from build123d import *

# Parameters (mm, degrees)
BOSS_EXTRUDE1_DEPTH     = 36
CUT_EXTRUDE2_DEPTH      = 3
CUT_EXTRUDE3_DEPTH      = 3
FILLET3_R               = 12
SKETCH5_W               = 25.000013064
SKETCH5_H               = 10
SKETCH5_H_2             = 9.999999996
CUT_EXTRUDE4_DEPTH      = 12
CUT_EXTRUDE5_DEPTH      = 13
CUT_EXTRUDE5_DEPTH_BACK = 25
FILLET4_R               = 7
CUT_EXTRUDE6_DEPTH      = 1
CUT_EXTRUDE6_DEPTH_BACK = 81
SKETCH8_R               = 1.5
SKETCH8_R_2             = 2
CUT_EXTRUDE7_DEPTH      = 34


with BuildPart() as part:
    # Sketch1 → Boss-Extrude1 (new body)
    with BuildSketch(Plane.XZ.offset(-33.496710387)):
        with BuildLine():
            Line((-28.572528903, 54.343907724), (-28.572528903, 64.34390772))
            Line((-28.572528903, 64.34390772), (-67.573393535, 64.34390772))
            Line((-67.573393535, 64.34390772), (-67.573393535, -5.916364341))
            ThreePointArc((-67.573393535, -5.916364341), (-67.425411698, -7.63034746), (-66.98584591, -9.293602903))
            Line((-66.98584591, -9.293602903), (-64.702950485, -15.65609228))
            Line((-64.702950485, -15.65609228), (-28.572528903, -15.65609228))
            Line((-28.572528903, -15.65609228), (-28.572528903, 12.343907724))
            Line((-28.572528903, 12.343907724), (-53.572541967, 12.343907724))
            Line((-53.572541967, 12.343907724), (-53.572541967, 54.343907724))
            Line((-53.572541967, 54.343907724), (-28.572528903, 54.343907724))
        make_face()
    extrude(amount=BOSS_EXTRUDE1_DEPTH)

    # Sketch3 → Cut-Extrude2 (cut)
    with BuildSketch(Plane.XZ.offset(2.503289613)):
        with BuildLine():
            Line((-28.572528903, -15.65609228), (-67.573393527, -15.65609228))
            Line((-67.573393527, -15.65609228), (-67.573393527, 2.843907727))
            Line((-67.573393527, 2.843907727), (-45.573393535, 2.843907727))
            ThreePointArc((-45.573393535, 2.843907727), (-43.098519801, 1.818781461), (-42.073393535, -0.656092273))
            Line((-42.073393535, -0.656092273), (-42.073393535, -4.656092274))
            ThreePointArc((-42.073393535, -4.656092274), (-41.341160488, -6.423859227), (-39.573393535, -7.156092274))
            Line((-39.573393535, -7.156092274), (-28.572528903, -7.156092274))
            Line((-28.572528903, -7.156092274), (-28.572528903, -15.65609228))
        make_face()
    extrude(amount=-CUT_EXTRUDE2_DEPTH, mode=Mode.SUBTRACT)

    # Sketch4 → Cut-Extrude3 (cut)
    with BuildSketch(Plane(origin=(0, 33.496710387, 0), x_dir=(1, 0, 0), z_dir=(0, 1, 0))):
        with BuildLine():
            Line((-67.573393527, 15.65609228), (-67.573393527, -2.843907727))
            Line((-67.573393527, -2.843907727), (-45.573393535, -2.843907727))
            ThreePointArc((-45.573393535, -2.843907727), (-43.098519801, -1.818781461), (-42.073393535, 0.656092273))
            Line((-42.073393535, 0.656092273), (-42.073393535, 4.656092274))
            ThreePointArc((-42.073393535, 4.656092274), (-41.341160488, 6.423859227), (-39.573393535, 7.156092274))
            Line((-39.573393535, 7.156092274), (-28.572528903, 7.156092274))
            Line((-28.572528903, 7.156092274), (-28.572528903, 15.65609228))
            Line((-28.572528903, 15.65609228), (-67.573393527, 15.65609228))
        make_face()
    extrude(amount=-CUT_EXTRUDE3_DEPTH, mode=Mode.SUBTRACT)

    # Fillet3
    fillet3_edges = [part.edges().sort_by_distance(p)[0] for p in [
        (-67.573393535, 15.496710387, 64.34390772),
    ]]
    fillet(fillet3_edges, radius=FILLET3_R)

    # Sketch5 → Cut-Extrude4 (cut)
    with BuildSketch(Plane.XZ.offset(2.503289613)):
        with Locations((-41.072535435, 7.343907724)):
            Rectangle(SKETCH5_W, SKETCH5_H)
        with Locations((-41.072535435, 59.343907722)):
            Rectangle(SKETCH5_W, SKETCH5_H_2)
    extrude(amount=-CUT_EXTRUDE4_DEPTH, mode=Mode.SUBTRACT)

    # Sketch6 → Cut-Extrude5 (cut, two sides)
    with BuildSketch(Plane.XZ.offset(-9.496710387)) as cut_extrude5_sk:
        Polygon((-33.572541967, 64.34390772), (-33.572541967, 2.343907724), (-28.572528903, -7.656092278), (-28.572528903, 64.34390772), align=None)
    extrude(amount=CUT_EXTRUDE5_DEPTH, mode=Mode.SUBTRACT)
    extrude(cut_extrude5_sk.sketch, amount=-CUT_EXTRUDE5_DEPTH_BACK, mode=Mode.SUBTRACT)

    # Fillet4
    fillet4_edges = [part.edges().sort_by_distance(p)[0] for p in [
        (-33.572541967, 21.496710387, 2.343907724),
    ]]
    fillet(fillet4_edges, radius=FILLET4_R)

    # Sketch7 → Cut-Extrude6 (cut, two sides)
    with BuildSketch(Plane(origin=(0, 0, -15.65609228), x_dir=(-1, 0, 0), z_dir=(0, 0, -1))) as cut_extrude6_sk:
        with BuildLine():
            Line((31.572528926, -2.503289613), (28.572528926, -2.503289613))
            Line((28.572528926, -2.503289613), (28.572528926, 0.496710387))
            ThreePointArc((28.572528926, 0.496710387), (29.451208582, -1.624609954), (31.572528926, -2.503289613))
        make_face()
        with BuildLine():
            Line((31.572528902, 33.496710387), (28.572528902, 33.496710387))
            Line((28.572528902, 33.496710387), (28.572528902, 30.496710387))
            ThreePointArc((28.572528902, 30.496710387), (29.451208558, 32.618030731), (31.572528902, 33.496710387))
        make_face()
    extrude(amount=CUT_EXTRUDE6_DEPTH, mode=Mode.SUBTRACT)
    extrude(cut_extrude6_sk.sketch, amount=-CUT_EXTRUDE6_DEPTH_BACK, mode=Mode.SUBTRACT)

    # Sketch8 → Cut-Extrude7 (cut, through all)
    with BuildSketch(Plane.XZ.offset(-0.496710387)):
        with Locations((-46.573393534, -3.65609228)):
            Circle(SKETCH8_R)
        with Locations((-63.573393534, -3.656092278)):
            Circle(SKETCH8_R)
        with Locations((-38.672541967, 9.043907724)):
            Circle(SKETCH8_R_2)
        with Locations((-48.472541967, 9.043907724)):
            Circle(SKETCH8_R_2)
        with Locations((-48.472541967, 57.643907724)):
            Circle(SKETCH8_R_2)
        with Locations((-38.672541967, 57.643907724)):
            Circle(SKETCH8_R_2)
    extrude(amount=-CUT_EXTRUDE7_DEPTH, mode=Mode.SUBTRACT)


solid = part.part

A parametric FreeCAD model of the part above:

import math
import FreeCAD as App
import Part
import Sketcher

V = App.Vector


def edges_at(feature, points):
    """Names of the edges that pass closest to the given points."""
    edges = feature.Shape.Edges
    near = lambda p: min(range(len(edges)), key=lambda i: edges[i].distToShape(Part.Vertex(*p))[0])
    return sorted({f"Edge{near(p) + 1}" for p in points})

doc = App.newDocument("Part")
body = doc.addObject("PartDesign::Body", "Body")

# Sketch on XZ plane
sketch1 = body.newObject("Sketcher::SketchObject", "Sketch")
sketch1.AttachmentSupport = (doc.getObject("XZ_Plane"), [""])
sketch1.MapMode = "FlatFace"
sketch1.AttachmentOffset = App.Placement(V(0, 0, -33.49671), App.Rotation())
sketch1.addGeometry([
    Part.LineSegment(V(-28.572529, 54.343908, 0), V(-28.572529, 64.343908, 0)),  # 0
    Part.LineSegment(V(-28.572529, 64.343908, 0), V(-67.573394, 64.343908, 0)),  # 1
    Part.LineSegment(V(-67.573394, 64.343908, 0), V(-67.573394, -5.916364, 0)),  # 2
    Part.ArcOfCircle(Part.Circle(V(-57.573394, -5.916364, 0), V(0, 0, 1), 10), math.radians(180), math.radians(199.73826)),  # 3
    Part.LineSegment(V(-66.985846, -9.293603, 0), V(-64.70295, -15.656092, 0)),  # 4
    Part.LineSegment(V(-64.70295, -15.656092, 0), V(-28.572529, -15.656092, 0)),  # 5
    Part.LineSegment(V(-28.572529, -15.656092, 0), V(-28.572529, 12.343908, 0)),  # 6
    Part.LineSegment(V(-28.572529, 12.343908, 0), V(-53.572542, 12.343908, 0)),  # 7
    Part.LineSegment(V(-53.572542, 12.343908, 0), V(-53.572542, 54.343908, 0)),  # 8
    Part.LineSegment(V(-53.572542, 54.343908, 0), V(-28.572529, 54.343908, 0)),  # 9
], False)
sketch1.addConstraint([
    Sketcher.Constraint("Coincident", 0, 2, 1, 1),
    Sketcher.Constraint("Coincident", 1, 2, 2, 1),
    Sketcher.Constraint("Tangent", 2, 2, 3, 1),
    Sketcher.Constraint("Tangent", 3, 2, 4, 1),
    Sketcher.Constraint("Coincident", 4, 2, 5, 1),
    Sketcher.Constraint("Coincident", 5, 2, 6, 1),
    Sketcher.Constraint("Coincident", 6, 2, 7, 1),
    Sketcher.Constraint("Coincident", 7, 2, 8, 1),
    Sketcher.Constraint("Coincident", 8, 2, 9, 1),
    Sketcher.Constraint("Coincident", 9, 2, 0, 1),
    Sketcher.Constraint("Vertical", 0),
    Sketcher.Constraint("Horizontal", 1),
    Sketcher.Constraint("Vertical", 2),
    Sketcher.Constraint("Horizontal", 5),
    Sketcher.Constraint("Vertical", 6),
    Sketcher.Constraint("Horizontal", 7),
    Sketcher.Constraint("Vertical", 8),
    Sketcher.Constraint("Horizontal", 9),
    Sketcher.Constraint("Vertical", 0, 2, 5, 2),
    Sketcher.Constraint("Radius", 3, 10.0),
    Sketcher.Constraint("DistanceY", 0, 1, 0, 2, 10.0),
    Sketcher.Constraint("DistanceY", 6, 1, 6, 2, 28.0),
    Sketcher.Constraint("DistanceY", 8, 1, 8, 2, 42.0),
    Sketcher.Constraint("DistanceX", 5, 1, 5, 2, 36.130422),
    Sketcher.Constraint("Distance", 4, 6.759651),
    Sketcher.Constraint("DistanceX", 1, 2, 1, 1, 39.000865),
    Sketcher.Constraint("DistanceX", 7, 2, 7, 1, 25.000013),
    Sketcher.Constraint("DistanceX", 0, 2, -1, 1, 28.572529),
    Sketcher.Constraint("DistanceY", 3, 3, -1, 1, 5.916364),
])
pad1 = body.newObject("PartDesign::Pad", "Pad")
pad1.Profile = sketch1
pad1.Length = 36

# Sketch on XZ plane
sketch2 = body.newObject("Sketcher::SketchObject", "Sketch001")
sketch2.AttachmentSupport = (doc.getObject("XZ_Plane"), [""])
sketch2.MapMode = "FlatFace"
sketch2.AttachmentOffset = App.Placement(V(0, 0, 2.50329), App.Rotation())
sketch2.addGeometry([
    Part.LineSegment(V(-67.573394, -15.656092, 0), V(-28.572529, -15.656092, 0)),  # 0
    Part.LineSegment(V(-28.572529, -15.656092, 0), V(-28.572529, -7.156092, 0)),  # 1
    Part.LineSegment(V(-28.572529, -7.156092, 0), V(-39.573394, -7.156092, 0)),  # 2
    Part.ArcOfCircle(Part.Circle(V(-39.573394, -4.656092, 0), V(0, 0, 1), 2.5), math.radians(180), math.radians(270)),  # 3
    Part.LineSegment(V(-42.073394, -4.656092, 0), V(-42.073394, -0.656092, 0)),  # 4
    Part.ArcOfCircle(Part.Circle(V(-45.573394, -0.656092, 0), V(0, 0, 1), 3.5), math.radians(0), math.radians(90)),  # 5
    Part.LineSegment(V(-45.573394, 2.843908, 0), V(-67.573394, 2.843908, 0)),  # 6
    Part.LineSegment(V(-67.573394, 2.843908, 0), V(-67.573394, -15.656092, 0)),  # 7
], False)
sketch2.addConstraint([
    Sketcher.Constraint("Coincident", 0, 2, 1, 1),
    Sketcher.Constraint("Coincident", 1, 2, 2, 1),
    Sketcher.Constraint("Tangent", 2, 2, 3, 2),
    Sketcher.Constraint("Tangent", 3, 1, 4, 1),
    Sketcher.Constraint("Tangent", 4, 2, 5, 1),
    Sketcher.Constraint("Tangent", 5, 2, 6, 1),
    Sketcher.Constraint("Coincident", 6, 2, 7, 1),
    Sketcher.Constraint("Coincident", 7, 2, 0, 1),
    Sketcher.Constraint("Horizontal", 0),
    Sketcher.Constraint("Vertical", 1),
    Sketcher.Constraint("Horizontal", 2),
    Sketcher.Constraint("Vertical", 4),
    Sketcher.Constraint("Horizontal", 6),
    Sketcher.Constraint("Vertical", 7),
    Sketcher.Constraint("Radius", 3, 2.5),
    Sketcher.Constraint("Radius", 5, 3.5),
    Sketcher.Constraint("DistanceX", 6, 2, 6, 1, 22.0),
    Sketcher.Constraint("DistanceY", 4, 1, 4, 2, 4.0),
    Sketcher.Constraint("DistanceY", 1, 1, 1, 2, 8.5),
    Sketcher.Constraint("DistanceX", 0, 1, 0, 2, 39.000865),
    Sketcher.Constraint("DistanceX", 0, 2, -1, 1, 28.572529),
    Sketcher.Constraint("DistanceY", 3, 3, -1, 1, 4.656092),
])
pocket1 = body.newObject("PartDesign::Pocket", "Pocket")
pocket1.Profile = sketch2
pocket1.Length = 3

# Sketch on XZ plane
sketch3 = body.newObject("Sketcher::SketchObject", "Sketch002")
sketch3.AttachmentSupport = (doc.getObject("XZ_Plane"), [""])
sketch3.MapMode = "FlatFace"
sketch3.AttachmentOffset = App.Placement(V(0, 0, -33.49671), App.Rotation())
sketch3.addGeometry([
    Part.LineSegment(V(-67.573394, -15.656092, 0), V(-67.573394, 2.843908, 0)),  # 0
    Part.LineSegment(V(-67.573394, 2.843908, 0), V(-45.573394, 2.843908, 0)),  # 1
    Part.ArcOfCircle(Part.Circle(V(-45.573394, -0.656092, 0), V(0, 0, 1), 3.5), math.radians(0), math.radians(90)),  # 2
    Part.LineSegment(V(-42.073394, -0.656092, 0), V(-42.073394, -4.656092, 0)),  # 3
    Part.ArcOfCircle(Part.Circle(V(-39.573394, -4.656092, 0), V(0, 0, 1), 2.5), math.radians(180), math.radians(270)),  # 4
    Part.LineSegment(V(-39.573394, -7.156092, 0), V(-28.572529, -7.156092, 0)),  # 5
    Part.LineSegment(V(-28.572529, -7.156092, 0), V(-28.572529, -15.656092, 0)),  # 6
    Part.LineSegment(V(-28.572529, -15.656092, 0), V(-67.573394, -15.656092, 0)),  # 7
], False)
sketch3.addConstraint([
    Sketcher.Constraint("Coincident", 0, 2, 1, 1),
    Sketcher.Constraint("Tangent", 1, 2, 2, 2),
    Sketcher.Constraint("Tangent", 2, 1, 3, 1),
    Sketcher.Constraint("Tangent", 3, 2, 4, 1),
    Sketcher.Constraint("Tangent", 4, 2, 5, 1),
    Sketcher.Constraint("Coincident", 5, 2, 6, 1),
    Sketcher.Constraint("Coincident", 6, 2, 7, 1),
    Sketcher.Constraint("Coincident", 7, 2, 0, 1),
    Sketcher.Constraint("Vertical", 0),
    Sketcher.Constraint("Horizontal", 1),
    Sketcher.Constraint("Vertical", 3),
    Sketcher.Constraint("Horizontal", 5),
    Sketcher.Constraint("Vertical", 6),
    Sketcher.Constraint("Horizontal", 7),
    Sketcher.Constraint("Radius", 2, 3.5),
    Sketcher.Constraint("Radius", 4, 2.5),
    Sketcher.Constraint("DistanceX", 1, 1, 1, 2, 22.0),
    Sketcher.Constraint("DistanceY", 3, 2, 3, 1, 4.0),
    Sketcher.Constraint("DistanceY", 0, 1, 0, 2, 18.5),
    Sketcher.Constraint("DistanceX", 5, 1, 5, 2, 11.000865),
    Sketcher.Constraint("DistanceX", 5, 2, -1, 1, 28.572529),
    Sketcher.Constraint("DistanceY", 2, 3, -1, 1, 0.656092),
])
pocket2 = body.newObject("PartDesign::Pocket", "Pocket001")
pocket2.Profile = sketch3
pocket2.Length = 3
pocket2.Reversed = True
doc.recompute()

fillet = body.newObject("PartDesign::Fillet", "Fillet")
fillet.Base = (pocket2, edges_at(pocket2, [(-67.573, 15.497, 64.344)]))
fillet.Radius = 12

# Sketch on XZ plane
sketch4 = body.newObject("Sketcher::SketchObject", "Sketch003")
sketch4.AttachmentSupport = (doc.getObject("XZ_Plane"), [""])
sketch4.MapMode = "FlatFace"
sketch4.AttachmentOffset = App.Placement(V(0, 0, 2.50329), App.Rotation())
sketch4.addGeometry([
    Part.LineSegment(V(-53.572542, 12.343908, 0), V(-53.572542, 2.343908, 0)),  # 0
    Part.LineSegment(V(-53.572542, 2.343908, 0), V(-28.572529, 2.343908, 0)),  # 1
    Part.LineSegment(V(-28.572529, 2.343908, 0), V(-28.572529, 12.343908, 0)),  # 2
    Part.LineSegment(V(-28.572529, 12.343908, 0), V(-53.572542, 12.343908, 0)),  # 3
    Part.LineSegment(V(-53.572542, 64.343908, 0), V(-53.572542, 54.343908, 0)),  # 4
    Part.LineSegment(V(-53.572542, 54.343908, 0), V(-28.572529, 54.343908, 0)),  # 5
    Part.LineSegment(V(-28.572529, 54.343908, 0), V(-28.572529, 64.343908, 0)),  # 6
    Part.LineSegment(V(-28.572529, 64.343908, 0), V(-53.572542, 64.343908, 0)),  # 7
], False)
sketch4.addConstraint([
    Sketcher.Constraint("Coincident", 0, 2, 1, 1),
    Sketcher.Constraint("Coincident", 1, 2, 2, 1),
    Sketcher.Constraint("Coincident", 2, 2, 3, 1),
    Sketcher.Constraint("Coincident", 3, 2, 0, 1),
    Sketcher.Constraint("Coincident", 4, 2, 5, 1),
    Sketcher.Constraint("Coincident", 5, 2, 6, 1),
    Sketcher.Constraint("Coincident", 6, 2, 7, 1),
    Sketcher.Constraint("Coincident", 7, 2, 4, 1),
    Sketcher.Constraint("Vertical", 0),
    Sketcher.Constraint("Horizontal", 1),
    Sketcher.Constraint("Vertical", 2),
    Sketcher.Constraint("Horizontal", 3),
    Sketcher.Constraint("Vertical", 4),
    Sketcher.Constraint("Horizontal", 5),
    Sketcher.Constraint("Vertical", 6),
    Sketcher.Constraint("Horizontal", 7),
    Sketcher.Constraint("Vertical", 3, 2, 4, 2),
    Sketcher.Constraint("Vertical", 2, 2, 5, 2),
    Sketcher.Constraint("Equal", 2, 4),
    Sketcher.Constraint("DistanceY", 0, 2, 0, 1, 10.0),
    Sketcher.Constraint("DistanceY", 3, 2, 4, 2, 42.0),
    Sketcher.Constraint("DistanceX", 1, 1, 1, 2, 25.000013),
    Sketcher.Constraint("DistanceX", 0, 2, -1, 1, 53.572542),
    Sketcher.Constraint("DistanceY", -1, 1, 0, 2, 2.343908),
])
pocket3 = body.newObject("PartDesign::Pocket", "Pocket002")
pocket3.Profile = sketch4
pocket3.Length = 12

# Sketch on XZ plane
sketch5 = body.newObject("Sketcher::SketchObject", "Sketch004")
sketch5.AttachmentSupport = (doc.getObject("XZ_Plane"), [""])
sketch5.MapMode = "FlatFace"
sketch5.AttachmentOffset = App.Placement(V(0, 0, -9.49671), App.Rotation())
sketch5.addGeometry([
    Part.LineSegment(V(-33.572542, 64.343908, 0), V(-33.572542, 2.343908, 0)),
    Part.LineSegment(V(-33.572542, 2.343908, 0), V(-28.572529, -7.656092, 0)),
    Part.LineSegment(V(-28.572529, -7.656092, 0), V(-28.572529, 64.343908, 0)),
    Part.LineSegment(V(-28.572529, 64.343908, 0), V(-33.572542, 64.343908, 0)),
], False)
sketch5.addConstraint([
    Sketcher.Constraint("Coincident", 0, 2, 1, 1),
    Sketcher.Constraint("Coincident", 1, 2, 2, 1),
    Sketcher.Constraint("Coincident", 2, 2, 3, 1),
    Sketcher.Constraint("Coincident", 3, 2, 0, 1),
    Sketcher.Constraint("Vertical", 0),
    Sketcher.Constraint("Vertical", 2),
    Sketcher.Constraint("Horizontal", 3),
    Sketcher.Constraint("DistanceY", 0, 2, 0, 1, 62.0),
    Sketcher.Constraint("DistanceY", 2, 1, 2, 2, 72.0),
    Sketcher.Constraint("DistanceX", 3, 2, 3, 1, 5.000013),
    Sketcher.Constraint("DistanceX", 0, 2, -1, 1, 33.572542),
    Sketcher.Constraint("DistanceY", -1, 1, 0, 2, 2.343908),
])
pocket4 = body.newObject("PartDesign::Pocket", "Pocket003")
pocket4.Profile = sketch5
pocket4.Type = "ThroughAll"
pocket4.Midplane = True
doc.recompute()

fillet2 = body.newObject("PartDesign::Fillet", "Fillet001")
fillet2.Base = (pocket4, edges_at(pocket4, [(-33.573, 21.497, 2.344)]))
fillet2.Radius = 7

# Sketch on XY plane
sketch6 = body.newObject("Sketcher::SketchObject", "Sketch005")
sketch6.AttachmentSupport = (doc.getObject("XY_Plane"), [""])
sketch6.MapMode = "FlatFace"
sketch6.AttachmentOffset = App.Placement(V(0, 0, -15.656092), App.Rotation())
sketch6.addGeometry([
    Part.LineSegment(V(-28.572529, -2.50329, 0), V(-31.572529, -2.50329, 0)),  # 0
    Part.ArcOfCircle(Part.Circle(V(-31.572529, 0.49671, 0), V(0, 0, 1), 3), math.radians(-90), math.radians(0)),  # 1
    Part.LineSegment(V(-28.572529, 0.49671, 0), V(-28.572529, -2.50329, 0)),  # 2
    Part.LineSegment(V(-31.572529, 33.49671, 0), V(-28.572529, 33.49671, 0)),  # 3
    Part.LineSegment(V(-28.572529, 33.49671, 0), V(-28.572529, 30.49671, 0)),  # 4
    Part.ArcOfCircle(Part.Circle(V(-31.572529, 30.49671, 0), V(0, 0, 1), 3), math.radians(0), math.radians(90)),  # 5
], False)
sketch6.addConstraint([
    Sketcher.Constraint("Tangent", 0, 2, 1, 1),
    Sketcher.Constraint("Tangent", 1, 2, 2, 1),
    Sketcher.Constraint("Coincident", 2, 2, 0, 1),
    Sketcher.Constraint("Coincident", 3, 2, 4, 1),
    Sketcher.Constraint("Tangent", 4, 2, 5, 1),
    Sketcher.Constraint("Tangent", 5, 2, 3, 1),
    Sketcher.Constraint("Horizontal", 0),
    Sketcher.Constraint("Vertical", 2),
    Sketcher.Constraint("Horizontal", 3),
    Sketcher.Constraint("Vertical", 4),
    Sketcher.Constraint("Equal", 1, 5),
    Sketcher.Constraint("Vertical", 1, 3, 5, 3),
    Sketcher.Constraint("Radius", 1, 3.0),
    Sketcher.Constraint("DistanceY", 1, 3, 5, 3, 30.0),
    Sketcher.Constraint("DistanceX", 1, 3, -1, 1, 31.572529),
    Sketcher.Constraint("DistanceY", -1, 1, 1, 3, 0.49671),
])
pocket5 = body.newObject("PartDesign::Pocket", "Pocket004")
pocket5.Profile = sketch6
pocket5.Type = "ThroughAll"
pocket5.Midplane = True

# Sketch on XZ plane
sketch7 = body.newObject("Sketcher::SketchObject", "Sketch006")
sketch7.AttachmentSupport = (doc.getObject("XZ_Plane"), [""])
sketch7.MapMode = "FlatFace"
sketch7.AttachmentOffset = App.Placement(V(0, 0, -0.49671), App.Rotation())
sketch7.addGeometry([
    Part.Circle(V(-46.573394, -3.656092, 0), V(0, 0, 1), 1.5),  # 0
    Part.Circle(V(-63.573394, -3.656092, 0), V(0, 0, 1), 1.5),  # 1
    Part.Circle(V(-38.672542, 9.043908, 0), V(0, 0, 1), 2),  # 2
    Part.Circle(V(-48.472542, 9.043908, 0), V(0, 0, 1), 2),  # 3
    Part.Circle(V(-48.472542, 57.643908, 0), V(0, 0, 1), 2),  # 4
    Part.Circle(V(-38.672542, 57.643908, 0), V(0, 0, 1), 2),  # 5
], False)
sketch7.addConstraint([
    Sketcher.Constraint("Equal", 0, 1),
    Sketcher.Constraint("Equal", 2, 3),
    Sketcher.Constraint("Equal", 3, 4),
    Sketcher.Constraint("Equal", 4, 5),
    Sketcher.Constraint("Horizontal", 0, 3, 1, 3),
    Sketcher.Constraint("Horizontal", 2, 3, 3, 3),
    Sketcher.Constraint("Horizontal", 4, 3, 5, 3),
    Sketcher.Constraint("Vertical", 3, 3, 4, 3),
    Sketcher.Constraint("Vertical", 2, 3, 5, 3),
    Sketcher.Constraint("Diameter", 0, 3.0),
    Sketcher.Constraint("Diameter", 2, 4.0),
    Sketcher.Constraint("DistanceX", 1, 3, 0, 3, 17.0),
    Sketcher.Constraint("DistanceY", 0, 3, 2, 3, 12.7),
    Sketcher.Constraint("DistanceX", 3, 3, 2, 3, 9.8),
    Sketcher.Constraint("DistanceY", 3, 3, 4, 3, 48.6),
    Sketcher.Constraint("DistanceX", 2, 3, -1, 1, 38.672542),
    Sketcher.Constraint("DistanceX", 0, 3, 2, 3, 7.900852),
    Sketcher.Constraint("DistanceY", 0, 3, -1, 1, 3.656092),
])
pocket6 = body.newObject("PartDesign::Pocket", "Pocket005")
pocket6.Profile = sketch7
pocket6.Type = "ThroughAll"

doc.recompute()
